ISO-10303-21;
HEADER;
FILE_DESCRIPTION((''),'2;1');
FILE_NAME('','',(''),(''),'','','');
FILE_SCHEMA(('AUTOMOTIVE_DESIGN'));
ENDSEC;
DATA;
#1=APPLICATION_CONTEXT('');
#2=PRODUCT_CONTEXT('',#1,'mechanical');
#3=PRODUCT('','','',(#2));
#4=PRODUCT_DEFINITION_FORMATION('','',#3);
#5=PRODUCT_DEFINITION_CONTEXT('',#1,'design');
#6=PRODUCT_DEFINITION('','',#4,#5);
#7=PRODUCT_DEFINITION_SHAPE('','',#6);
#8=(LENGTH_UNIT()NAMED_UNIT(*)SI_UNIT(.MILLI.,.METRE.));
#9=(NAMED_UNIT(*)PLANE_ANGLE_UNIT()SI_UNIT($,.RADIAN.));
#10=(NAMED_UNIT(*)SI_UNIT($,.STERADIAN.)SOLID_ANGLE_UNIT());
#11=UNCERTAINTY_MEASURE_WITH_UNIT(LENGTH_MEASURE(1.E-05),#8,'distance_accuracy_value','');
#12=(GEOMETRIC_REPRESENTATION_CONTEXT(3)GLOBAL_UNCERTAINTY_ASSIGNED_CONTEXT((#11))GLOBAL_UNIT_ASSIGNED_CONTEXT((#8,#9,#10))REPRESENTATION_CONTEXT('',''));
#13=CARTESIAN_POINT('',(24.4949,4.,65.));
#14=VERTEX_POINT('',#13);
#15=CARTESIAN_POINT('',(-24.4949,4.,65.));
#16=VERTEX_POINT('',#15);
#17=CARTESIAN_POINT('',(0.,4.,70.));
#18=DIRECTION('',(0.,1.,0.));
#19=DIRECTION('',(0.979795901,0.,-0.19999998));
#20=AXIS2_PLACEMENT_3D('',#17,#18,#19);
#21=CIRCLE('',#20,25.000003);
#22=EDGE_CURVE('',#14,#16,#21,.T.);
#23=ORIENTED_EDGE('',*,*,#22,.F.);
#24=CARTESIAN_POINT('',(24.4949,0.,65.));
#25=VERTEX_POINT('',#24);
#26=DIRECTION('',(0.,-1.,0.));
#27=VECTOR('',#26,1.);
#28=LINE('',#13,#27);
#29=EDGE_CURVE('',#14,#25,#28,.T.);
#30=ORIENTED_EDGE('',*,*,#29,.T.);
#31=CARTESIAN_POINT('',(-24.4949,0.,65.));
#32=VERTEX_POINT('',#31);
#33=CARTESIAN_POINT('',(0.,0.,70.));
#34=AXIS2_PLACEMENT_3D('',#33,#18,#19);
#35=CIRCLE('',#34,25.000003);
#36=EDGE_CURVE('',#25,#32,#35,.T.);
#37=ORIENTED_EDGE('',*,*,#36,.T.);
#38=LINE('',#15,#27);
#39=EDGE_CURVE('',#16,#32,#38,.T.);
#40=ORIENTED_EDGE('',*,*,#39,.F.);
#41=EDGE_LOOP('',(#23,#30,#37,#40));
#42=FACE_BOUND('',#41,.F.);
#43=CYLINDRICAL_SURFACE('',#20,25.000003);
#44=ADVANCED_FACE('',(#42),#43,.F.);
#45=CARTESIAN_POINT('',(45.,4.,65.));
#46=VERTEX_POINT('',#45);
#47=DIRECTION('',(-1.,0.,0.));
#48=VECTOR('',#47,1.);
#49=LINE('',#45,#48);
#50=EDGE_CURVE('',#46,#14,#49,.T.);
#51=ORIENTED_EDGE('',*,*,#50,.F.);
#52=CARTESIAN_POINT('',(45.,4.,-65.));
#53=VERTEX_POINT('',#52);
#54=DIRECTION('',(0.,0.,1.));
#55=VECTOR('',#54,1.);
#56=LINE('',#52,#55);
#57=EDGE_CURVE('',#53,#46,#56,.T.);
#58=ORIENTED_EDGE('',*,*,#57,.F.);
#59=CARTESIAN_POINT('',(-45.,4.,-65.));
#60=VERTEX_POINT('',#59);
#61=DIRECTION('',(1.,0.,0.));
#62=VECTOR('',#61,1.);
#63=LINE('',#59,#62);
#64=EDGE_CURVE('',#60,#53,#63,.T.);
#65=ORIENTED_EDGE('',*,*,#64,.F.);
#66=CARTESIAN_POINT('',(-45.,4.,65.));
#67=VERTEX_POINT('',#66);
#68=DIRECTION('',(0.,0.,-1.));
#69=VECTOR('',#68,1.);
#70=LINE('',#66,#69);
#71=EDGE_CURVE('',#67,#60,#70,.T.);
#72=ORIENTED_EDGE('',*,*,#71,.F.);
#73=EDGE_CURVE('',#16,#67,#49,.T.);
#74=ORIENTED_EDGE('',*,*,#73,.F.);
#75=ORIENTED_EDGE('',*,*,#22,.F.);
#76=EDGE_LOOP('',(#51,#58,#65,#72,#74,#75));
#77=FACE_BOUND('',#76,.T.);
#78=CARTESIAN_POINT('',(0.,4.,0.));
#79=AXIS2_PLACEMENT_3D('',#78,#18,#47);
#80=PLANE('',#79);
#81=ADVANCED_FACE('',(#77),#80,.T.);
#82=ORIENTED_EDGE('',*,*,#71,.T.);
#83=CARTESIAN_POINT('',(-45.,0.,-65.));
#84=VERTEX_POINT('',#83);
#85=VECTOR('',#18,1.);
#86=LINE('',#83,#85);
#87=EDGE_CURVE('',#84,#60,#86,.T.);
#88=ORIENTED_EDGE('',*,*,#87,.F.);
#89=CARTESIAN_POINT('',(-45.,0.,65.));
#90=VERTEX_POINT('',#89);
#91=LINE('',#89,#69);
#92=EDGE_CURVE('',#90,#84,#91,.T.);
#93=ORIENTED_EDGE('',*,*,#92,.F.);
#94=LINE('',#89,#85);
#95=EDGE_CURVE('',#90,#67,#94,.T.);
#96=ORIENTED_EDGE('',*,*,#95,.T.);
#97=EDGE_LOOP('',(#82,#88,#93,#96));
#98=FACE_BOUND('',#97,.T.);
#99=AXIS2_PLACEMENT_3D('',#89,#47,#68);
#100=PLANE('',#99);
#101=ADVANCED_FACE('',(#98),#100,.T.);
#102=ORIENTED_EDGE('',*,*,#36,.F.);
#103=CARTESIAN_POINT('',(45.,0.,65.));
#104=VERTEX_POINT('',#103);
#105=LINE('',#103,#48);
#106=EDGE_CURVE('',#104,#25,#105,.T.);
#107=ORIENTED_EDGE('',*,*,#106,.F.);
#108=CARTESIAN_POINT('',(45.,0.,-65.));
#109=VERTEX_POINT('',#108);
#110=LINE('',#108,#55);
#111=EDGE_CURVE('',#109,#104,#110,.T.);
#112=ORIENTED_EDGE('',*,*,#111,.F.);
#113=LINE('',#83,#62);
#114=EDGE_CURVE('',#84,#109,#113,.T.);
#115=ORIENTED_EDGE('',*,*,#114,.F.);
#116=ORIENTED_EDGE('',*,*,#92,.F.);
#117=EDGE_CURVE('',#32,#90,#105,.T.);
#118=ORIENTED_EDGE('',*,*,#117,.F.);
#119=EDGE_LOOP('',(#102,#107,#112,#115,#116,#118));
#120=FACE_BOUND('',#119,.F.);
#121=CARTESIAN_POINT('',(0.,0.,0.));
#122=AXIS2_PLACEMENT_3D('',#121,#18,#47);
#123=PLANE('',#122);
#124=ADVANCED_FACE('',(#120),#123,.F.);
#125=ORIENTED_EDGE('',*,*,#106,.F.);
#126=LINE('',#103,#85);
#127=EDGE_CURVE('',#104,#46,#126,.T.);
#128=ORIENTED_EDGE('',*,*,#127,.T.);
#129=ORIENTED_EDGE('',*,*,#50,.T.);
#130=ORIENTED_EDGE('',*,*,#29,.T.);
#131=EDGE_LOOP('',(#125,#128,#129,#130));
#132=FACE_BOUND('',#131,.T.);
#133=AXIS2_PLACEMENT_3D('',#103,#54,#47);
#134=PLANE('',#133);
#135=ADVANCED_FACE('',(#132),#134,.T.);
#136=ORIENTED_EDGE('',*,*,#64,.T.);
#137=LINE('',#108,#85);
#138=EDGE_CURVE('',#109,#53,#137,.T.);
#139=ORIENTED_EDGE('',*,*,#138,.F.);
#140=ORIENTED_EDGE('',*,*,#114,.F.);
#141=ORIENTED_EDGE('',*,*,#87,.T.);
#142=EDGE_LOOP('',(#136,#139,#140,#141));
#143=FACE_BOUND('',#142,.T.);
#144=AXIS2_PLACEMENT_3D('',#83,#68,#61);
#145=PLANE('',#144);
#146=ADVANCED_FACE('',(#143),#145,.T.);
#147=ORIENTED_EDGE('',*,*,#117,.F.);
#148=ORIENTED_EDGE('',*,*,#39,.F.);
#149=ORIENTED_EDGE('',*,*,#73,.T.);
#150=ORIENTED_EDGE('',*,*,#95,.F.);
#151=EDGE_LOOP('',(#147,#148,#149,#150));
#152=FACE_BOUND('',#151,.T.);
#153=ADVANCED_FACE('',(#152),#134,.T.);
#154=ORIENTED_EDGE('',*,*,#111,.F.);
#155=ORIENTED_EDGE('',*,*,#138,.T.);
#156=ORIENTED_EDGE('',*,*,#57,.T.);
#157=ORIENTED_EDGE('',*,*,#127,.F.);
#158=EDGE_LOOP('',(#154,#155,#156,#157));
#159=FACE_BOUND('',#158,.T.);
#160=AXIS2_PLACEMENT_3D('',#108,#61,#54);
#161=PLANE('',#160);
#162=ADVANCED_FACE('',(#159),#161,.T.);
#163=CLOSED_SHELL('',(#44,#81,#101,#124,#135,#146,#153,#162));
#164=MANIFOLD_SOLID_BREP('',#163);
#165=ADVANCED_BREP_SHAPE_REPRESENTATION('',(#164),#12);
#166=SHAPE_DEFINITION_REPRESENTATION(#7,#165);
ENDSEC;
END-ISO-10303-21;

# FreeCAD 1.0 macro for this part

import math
import FreeCAD as App
import Part
import Sketcher
from FreeCAD import Vector
Q = App.Units.Quantity


def add_polygon(sketch, points):
    """Adds a closed chain of lines whose ends are joined by coincident constraints."""
    first, n = sketch.GeometryCount, len(points)
    for a, b in zip(points, points[1:] + points[:1]):
        sketch.addGeometry(Part.LineSegment(App.Vector(*a, 0), App.Vector(*b, 0)), False)
    for i in range(n):
        sketch.addConstraint(Sketcher.Constraint("Coincident", first + i, 2, first + (i + 1) % n, 1))

doc = App.newDocument("Part")
body = doc.addObject("PartDesign::Body", "Body")

# Sketch on XZ plane
sketch1 = doc.addObject("Sketcher::SketchObject", "Sketch")
body.addObject(sketch1)
sketch1.AttachmentSupport = (doc.XZ_Plane, [""])
sketch1.MapMode = "FlatFace"
add_polygon(sketch1, [(-45, 65), (45, 65), (45, -65), (-45, -65)])  # lines 0-3
sketch1.addConstraint([
    Sketcher.Constraint("Horizontal", 0),
    Sketcher.Constraint("Vertical", 1),
    Sketcher.Constraint("Horizontal", 2),
    Sketcher.Constraint("Vertical", 3),
    Sketcher.Constraint("Symmetric", 0, 2, 2, 2, -1, 1),
    Sketcher.Constraint("DistanceX", 0, 1, 0, 2, Q("90 mm")),
    Sketcher.Constraint("DistanceY", 1, 2, 1, 1, Q("130 mm")),
])
pad1 = doc.addObject("PartDesign::Pad", "Pad")
body.addObject(pad1)
pad1.Profile = sketch1
pad1.Length = 4
pad1.Reversed = True

# Sketch on XZ plane
sketch2 = doc.addObject("Sketcher::SketchObject", "Sketch001")
body.addObject(sketch2)
sketch2.AttachmentSupport = (doc.XZ_Plane, [""])
sketch2.MapMode = "FlatFace"
sketch2.AttachmentOffset = App.Placement(Vector(0, 0, -4), App.Rotation())
sketch2.addGeometry([
    Part.ArcOfCircle(Part.Circle(Vector(0, 70, 0), Vector(0, 0, 1), 25.000003), math.radians(-168.463042), math.radians(-11.536958)),
    Part.LineSegment(Vector(-24.4949, 65, 0), Vector(24.4949, 65, 0)),
], False)
sketch2.addConstraint([
    Sketcher.Constraint("Coincident", 0, 1, 1, 1),
    Sketcher.Constraint("Coincident", 1, 2, 0, 2),
    Sketcher.Constraint("Horizontal", 1),
    Sketcher.Constraint("PointOnObject", 0, 3, -2),
    Sketcher.Constraint("Radius", 0, Q("25 mm")),
    Sketcher.Constraint("DistanceY", 0, 1, 0, 3, Q("5 mm")),
    Sketcher.Constraint("DistanceY", -1, 1, 0, 3, Q("70 mm")),
])
pocket1 = doc.addObject("PartDesign::Pocket", "Pocket")
body.addObject(pocket1)
pocket1.Profile = sketch2
pocket1.Length = 4
pocket1.Reversed = True

doc.recompute()
